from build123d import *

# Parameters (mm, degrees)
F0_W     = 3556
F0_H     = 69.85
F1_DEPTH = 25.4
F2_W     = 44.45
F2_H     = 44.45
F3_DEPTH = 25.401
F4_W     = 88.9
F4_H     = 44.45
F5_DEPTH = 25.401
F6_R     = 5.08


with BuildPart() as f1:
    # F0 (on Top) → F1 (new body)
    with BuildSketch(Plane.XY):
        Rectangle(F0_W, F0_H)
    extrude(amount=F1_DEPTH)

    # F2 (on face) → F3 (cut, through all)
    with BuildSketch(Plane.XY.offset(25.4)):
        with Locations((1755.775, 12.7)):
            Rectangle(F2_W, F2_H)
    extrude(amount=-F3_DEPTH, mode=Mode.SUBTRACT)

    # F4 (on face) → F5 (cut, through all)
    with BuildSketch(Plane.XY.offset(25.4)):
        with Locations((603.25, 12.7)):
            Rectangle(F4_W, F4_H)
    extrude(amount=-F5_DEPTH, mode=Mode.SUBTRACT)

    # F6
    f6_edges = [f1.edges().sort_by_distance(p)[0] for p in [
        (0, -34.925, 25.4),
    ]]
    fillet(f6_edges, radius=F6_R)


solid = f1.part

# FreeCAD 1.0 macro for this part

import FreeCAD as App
import Part
import Sketcher
from FreeCAD import Vector
Q = App.Units.Quantity


def edges_at(feature, points):
    """Names of the edges that pass closest to the given points."""
    edges = feature.Shape.Edges
    near = lambda p: min(range(len(edges)), key=lambda i: edges[i].distToShape(Part.Vertex(*p))[0])
    return sorted({f"Edge{near(p) + 1}" for p in points})


def add_polygon(sketch, points):
    """Adds a closed chain of lines whose ends are joined by coincident constraints."""
    first, n = sketch.GeometryCount, len(points)
    for a, b in zip(points, points[1:] + points[:1]):
        sketch.addGeometry(Part.LineSegment(App.Vector(*a, 0), App.Vector(*b, 0)), False)
    for i in range(n):
        sketch.addConstraint(Sketcher.Constraint("Coincident", first + i, 2, first + (i + 1) % n, 1))

doc = App.newDocument("Part")
params = doc.addObject("Spreadsheet::Sheet", "Params")
for row, (alias, value) in enumerate([
    ("sketch1_width", "140 in"),
    ("sketch1_height", "2.75 in"),
    ("pad1_length", "1 in"),
    ("sketch2_width", "1.75 in"),
    ("sketch3_width", "3.5 in"),
    ("sketch3_height", "1.75 in"),
    ("fillet_radius", "0.2 in"),
], start=1):
    params.set(f"A{row}", alias)
    params.set(f"B{row}", "=" + value)
    params.setAlias(f"B{row}", alias)

body = doc.addObject("PartDesign::Body", "Body")

sketch1 = doc.addObject("Sketcher::SketchObject", "Sketch")
body.addObject(sketch1)
sketch1.AttachmentSupport = (doc.XY_Plane, [""])
sketch1.MapMode = "FlatFace"
add_polygon(sketch1, [(-1778, 34.925), (-1778, -34.925), (1778, -34.925), (1778, 34.925)])
sketch1.addConstraint(Sketcher.Constraint("Vertical", 0))
sketch1.addConstraint(Sketcher.Constraint("Horizontal", 1))
sketch1.addConstraint(Sketcher.Constraint("Vertical", 2))
sketch1.addConstraint(Sketcher.Constraint("Horizontal", 3))
sketch1.addConstraint(Sketcher.Constraint("Symmetric", 0, 2, 2, 2, -1, 1))
sketch1.addConstraint(Sketcher.Constraint("DistanceX", 1, 1, 1, 2, Q("140 in")))
sketch1.addConstraint(Sketcher.Constraint("DistanceY", 0, 2, 0, 1, Q("2.75 in")))
sketch1.setExpression("Constraints[9]", "Params.sketch1_width")
sketch1.setExpression("Constraints[10]", "Params.sketch1_height")
pad1 = doc.addObject("PartDesign::Pad", "Pad")
body.addObject(pad1)
pad1.Profile = sketch1
pad1.setExpression("Length", "Params.pad1_length")

sketch2 = doc.addObject("Sketcher::SketchObject", "Sketch001")
body.addObject(sketch2)
sketch2.AttachmentSupport = (doc.XY_Plane, [""])
sketch2.MapMode = "FlatFace"
sketch2.AttachmentOffset = App.Placement(Vector(0, 0, 1 * 25.4), App.Rotation())
add_polygon(sketch2, [(1733.55, 34.925), (1733.55, -9.525), (1778, -9.525), (1778, 34.925)])
sketch2.addConstraint(Sketcher.Constraint("Vertical", 0))
sketch2.addConstraint(Sketcher.Constraint("Horizontal", 1))
sketch2.addConstraint(Sketcher.Constraint("Vertical", 2))
sketch2.addConstraint(Sketcher.Constraint("Horizontal", 3))
sketch2.addConstraint(Sketcher.Constraint("Equal", 3, 0))
sketch2.addConstraint(Sketcher.Constraint("DistanceX", -1, 1, 1, 2, Q("70 in")))
sketch2.addConstraint(Sketcher.Constraint("DistanceX", 1, 1, 1, 2, Q("1.75 in")))
sketch2.addConstraint(Sketcher.Constraint("DistanceY", 0, 2, -1, 1, Q("0.375 in")))
sketch2.setExpression("Constraints[10]", "Params.sketch2_width")
pocket1 = doc.addObject("PartDesign::Pocket", "Pocket")
body.addObject(pocket1)
pocket1.Profile = sketch2
pocket1.Type = "ThroughAll"

sketch3 = doc.addObject("Sketcher::SketchObject", "Sketch002")
body.addObject(sketch3)
sketch3.AttachmentSupport = (doc.XY_Plane, [""])
sketch3.MapMode = "FlatFace"
sketch3.AttachmentOffset = App.Placement(Vector(0, 0, 1 * 25.4), App.Rotation())
add_polygon(sketch3, [(558.8, 34.925), (558.8, -9.525), (647.7, -9.525), (647.7, 34.925)])
sketch3.addConstraint(Sketcher.Constraint("Vertical", 0))
sketch3.addConstraint(Sketcher.Constraint("Horizontal", 1))
sketch3.addConstraint(Sketcher.Constraint("Vertical", 2))
sketch3.addConstraint(Sketcher.Constraint("Horizontal", 3))
sketch3.addConstraint(Sketcher.Constraint("DistanceX", 1, 1, 1, 2, Q("3.5 in")))
sketch3.addConstraint(Sketcher.Constraint("DistanceX", -1, 1, 0, 2, Q("22 in")))
sketch3.addConstraint(Sketcher.Constraint("DistanceY", 0, 2, 0, 1, Q("1.75 in")))
sketch3.addConstraint(Sketcher.Constraint("DistanceY", 0, 2, -1, 1, Q("0.375 in")))
sketch3.setExpression("Constraints[8]", "Params.sketch3_width")
sketch3.setExpression("Constraints[10]", "Params.sketch3_height")
pocket2 = doc.addObject("PartDesign::Pocket", "Pocket001")
body.addObject(pocket2)
pocket2.Profile = sketch3
pocket2.Type = "ThroughAll"
doc.recompute()

fillet = doc.addObject("PartDesign::Fillet", "Fillet")
body.addObject(fillet)
fillet.Base = (pocket2, edges_at(pocket2, [(0, -34.925, 25.4)]))
fillet.setExpression("Radius", "Params.fillet_radius")

doc.recompute()
